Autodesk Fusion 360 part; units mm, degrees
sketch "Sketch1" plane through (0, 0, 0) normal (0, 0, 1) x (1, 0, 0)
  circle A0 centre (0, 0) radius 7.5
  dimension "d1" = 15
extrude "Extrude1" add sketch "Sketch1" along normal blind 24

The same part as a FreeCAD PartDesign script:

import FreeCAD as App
import Part
import Sketcher
from FreeCAD import Vector
Q = App.Units.Quantity

doc = App.newDocument("Part")
body = doc.addObject("PartDesign::Body", "Body")

sketch1 = doc.addObject("Sketcher::SketchObject", "Sketch")
body.addObject(sketch1)
sketch1.AttachmentSupport = (doc.XY_Plane, [""])
sketch1.MapMode = "FlatFace"
sketch1.addGeometry(Part.Circle(Vector(0, 0, 0), Vector(0, 0, 1), 8), False)
sketch1.addConstraint([
    Sketcher.Constraint("Coincident", 0, 3, -1, 1),
    Sketcher.Constraint("Diameter", 0, Q("15 mm")),
])
pad1 = doc.addObject("PartDesign::Pad", "Pad")
body.addObject(pad1)
pad1.Profile = sketch1
pad1.Length = 24

doc.recompute()
